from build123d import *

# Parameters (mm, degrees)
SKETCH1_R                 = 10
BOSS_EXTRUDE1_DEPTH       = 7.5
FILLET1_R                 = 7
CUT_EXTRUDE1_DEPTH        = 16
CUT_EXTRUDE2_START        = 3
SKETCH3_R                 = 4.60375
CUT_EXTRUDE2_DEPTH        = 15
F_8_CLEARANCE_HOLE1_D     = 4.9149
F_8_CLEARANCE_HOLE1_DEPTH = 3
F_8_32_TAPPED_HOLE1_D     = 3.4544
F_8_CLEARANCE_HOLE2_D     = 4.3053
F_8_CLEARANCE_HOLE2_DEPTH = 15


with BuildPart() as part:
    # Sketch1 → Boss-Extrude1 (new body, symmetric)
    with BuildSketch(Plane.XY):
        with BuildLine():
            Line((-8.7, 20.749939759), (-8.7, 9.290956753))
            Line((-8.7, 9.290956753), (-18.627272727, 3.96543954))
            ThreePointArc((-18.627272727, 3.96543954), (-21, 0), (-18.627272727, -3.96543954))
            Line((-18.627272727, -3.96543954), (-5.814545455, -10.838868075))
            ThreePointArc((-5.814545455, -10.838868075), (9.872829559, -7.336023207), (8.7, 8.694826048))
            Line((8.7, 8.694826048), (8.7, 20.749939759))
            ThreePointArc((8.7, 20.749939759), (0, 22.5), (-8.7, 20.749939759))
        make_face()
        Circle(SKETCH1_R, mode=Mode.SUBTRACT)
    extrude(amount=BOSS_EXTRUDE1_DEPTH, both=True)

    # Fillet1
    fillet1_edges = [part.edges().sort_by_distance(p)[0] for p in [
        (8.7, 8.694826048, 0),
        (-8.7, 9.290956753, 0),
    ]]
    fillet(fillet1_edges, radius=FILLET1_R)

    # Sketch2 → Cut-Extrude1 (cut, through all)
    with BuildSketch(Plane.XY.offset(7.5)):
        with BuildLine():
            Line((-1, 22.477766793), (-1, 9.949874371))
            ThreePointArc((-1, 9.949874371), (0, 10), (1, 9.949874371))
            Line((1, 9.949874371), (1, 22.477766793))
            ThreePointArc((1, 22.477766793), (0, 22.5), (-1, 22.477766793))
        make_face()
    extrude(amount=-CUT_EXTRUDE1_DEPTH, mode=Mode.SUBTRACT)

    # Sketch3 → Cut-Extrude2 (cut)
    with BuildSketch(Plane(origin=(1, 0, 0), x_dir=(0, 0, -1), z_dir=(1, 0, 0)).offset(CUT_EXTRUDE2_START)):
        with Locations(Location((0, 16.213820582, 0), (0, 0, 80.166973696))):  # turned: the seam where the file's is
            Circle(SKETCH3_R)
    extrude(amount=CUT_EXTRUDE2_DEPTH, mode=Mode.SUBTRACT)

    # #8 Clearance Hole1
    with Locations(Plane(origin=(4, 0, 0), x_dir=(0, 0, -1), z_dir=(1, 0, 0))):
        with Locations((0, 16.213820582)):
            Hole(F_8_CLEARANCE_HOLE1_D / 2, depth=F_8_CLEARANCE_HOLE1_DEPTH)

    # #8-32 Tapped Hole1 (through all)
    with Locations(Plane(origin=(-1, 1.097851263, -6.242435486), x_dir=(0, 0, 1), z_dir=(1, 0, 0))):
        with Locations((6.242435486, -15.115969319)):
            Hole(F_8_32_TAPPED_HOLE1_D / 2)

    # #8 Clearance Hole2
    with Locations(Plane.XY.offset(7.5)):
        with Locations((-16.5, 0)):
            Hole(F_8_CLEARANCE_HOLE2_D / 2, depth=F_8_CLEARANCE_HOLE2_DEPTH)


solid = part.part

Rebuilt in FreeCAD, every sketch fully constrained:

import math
import FreeCAD as App
import Part
import Sketcher
from FreeCAD import Vector
Q = App.Units.Quantity


def edges_at(feature, points):
    """Names of the edges that pass closest to the given points."""
    edges = feature.Shape.Edges
    near = lambda p: min(range(len(edges)), key=lambda i: edges[i].distToShape(Part.Vertex(*p))[0])
    return sorted({f"Edge{near(p) + 1}" for p in points})

doc = App.newDocument("Part")
params = doc.addObject("Spreadsheet::Sheet", "Params")
for row, (alias, value) in enumerate([
    ("sketch1_diameter", "20 mm"),
    ("sketch1_radius", "4.5 mm"),
    ("sketch1_radius2", "12.3 mm"),
    ("sketch1_radius3", "22.5 mm"),
    ("pad1_length", "15 mm"),
    ("fillet_radius", "7 mm"),
    ("sketch2_radius", "10 mm"),
    ("sketch2_radius2", "22.5 mm"),
    ("pocket2_length", "15 mm"),
    ("hole_diameter", "4.9149 mm"),
    ("hole_depth", "3 mm"),
    ("hole2_diameter", "3.4544 mm"),
    ("hole3_diameter", "4.3053 mm"),
    ("hole3_depth", "15 mm"),
], start=1):
    params.set(f"A{row}", alias)
    params.set(f"B{row}", "=" + value)
    params.setAlias(f"B{row}", alias)

body = doc.addObject("PartDesign::Body", "Body")

# Sketch on XY plane
sketch1 = body.newObject("Sketcher::SketchObject", "Sketch")
sketch1.AttachmentSupport = (doc.getObject("XY_Plane"), [""])
sketch1.MapMode = "FlatFace"
sketch1.addGeometry([
    Part.LineSegment(Vector(-8.7, 20.7, 0), Vector(-8.7, 9.3, 0)),  # 0
    Part.LineSegment(Vector(-8.7, 9.3, 0), Vector(-18.6, 4, 0)),  # 1
    Part.ArcOfCircle(Part.Circle(Vector(-16.5, 0, 0), Vector(0, 0, 1), 4.5), math.radians(118), math.radians(242)),  # 2
    Part.LineSegment(Vector(-18.6, -4, 0), Vector(-5.8, -10.8, 0)),  # 3
    Part.ArcOfCircle(Part.Circle(Vector(0, 0, 0), Vector(0, 0, 1), 12.3), math.radians(-118), math.radians(45)),  # 4
    Part.LineSegment(Vector(8.7, 8.7, 0), Vector(8.7, 20.7, 0)),  # 5
    Part.ArcOfCircle(Part.Circle(Vector(0, 0, 0), Vector(0, 0, 1), 22.5), math.radians(67), math.radians(113)),  # 6
    Part.Circle(Vector(0, 0, 0), Vector(0, 0, 1), 10),  # 7
], False)
sketch1.addConstraint([
    Sketcher.Constraint("Coincident", 0, 2, 1, 1),
    Sketcher.Constraint("Tangent", 1, 2, 2, 1),
    Sketcher.Constraint("Tangent", 2, 2, 3, 1),
    Sketcher.Constraint("Tangent", 3, 2, 4, 1),
    Sketcher.Constraint("Coincident", 4, 2, 5, 1),
    Sketcher.Constraint("Coincident", 5, 2, 6, 1),
    Sketcher.Constraint("Coincident", 6, 2, 0, 1),
    Sketcher.Constraint("Vertical", 0),
    Sketcher.Constraint("Vertical", 5),
    Sketcher.Constraint("Coincident", 4, 3, -1, 1),
    Sketcher.Constraint("Coincident", 6, 3, -1, 1),
    Sketcher.Constraint("Coincident", 7, 3, -1, 1),
    Sketcher.Constraint("Symmetric", 1, 2, 2, 2, -1),
    Sketcher.Constraint("Horizontal", 5, 2, 6, 2),
    Sketcher.Constraint("Diameter", 7, Q("20 mm")),
    Sketcher.Constraint("Radius", 2, Q("4.5 mm")),
    Sketcher.Constraint("Radius", 4, Q("12.3 mm")),
    Sketcher.Constraint("Radius", 6, Q("22.5 mm")),
    Sketcher.Constraint("DistanceX", 2, 3, -1, 1, Q("16.5 mm")),
    Sketcher.Constraint("DistanceX", 0, 2, -1, 1, Q("8.7 mm")),
])
sketch1.setExpression("Constraints[14]", "Params.sketch1_diameter")
sketch1.setExpression("Constraints[15]", "Params.sketch1_radius")
sketch1.setExpression("Constraints[16]", "Params.sketch1_radius2")
sketch1.setExpression("Constraints[17]", "Params.sketch1_radius3")
pad1 = body.newObject("PartDesign::Pad", "Pad")
pad1.Profile = sketch1
pad1.setExpression("Length", "Params.pad1_length")
pad1.Midplane = True
doc.recompute()

fillet = body.newObject("PartDesign::Fillet", "Fillet")
fillet.Base = (pad1, edges_at(pad1, [(8.7, 8.695, 0), (-8.7, 9.291, 0)]))
fillet.setExpression("Radius", "Params.fillet_radius")

# Sketch on XY plane
sketch2 = body.newObject("Sketcher::SketchObject", "Sketch001")
sketch2.AttachmentSupport = (doc.getObject("XY_Plane"), [""])
sketch2.MapMode = "FlatFace"
sketch2.AttachmentOffset = App.Placement(Vector(0, 0, 7.5), App.Rotation())
sketch2.addGeometry([
    Part.LineSegment(Vector(-1, 22.5, 0), Vector(-1, 9.9, 0)),
    Part.ArcOfCircle(Part.Circle(Vector(0, 0, 0), Vector(0, 0, 1), 10), math.radians(84.26), math.radians(95.74)),
    Part.LineSegment(Vector(1, 9.9, 0), Vector(1, 22.5, 0)),
    Part.ArcOfCircle(Part.Circle(Vector(0, 0, 0), Vector(0, 0, 1), 22.5), math.radians(87.45), math.radians(92.55)),
], False)
sketch2.addConstraint([
    Sketcher.Constraint("Coincident", 0, 2, 1, 2),
    Sketcher.Constraint("Coincident", 1, 1, 2, 1),
    Sketcher.Constraint("Coincident", 2, 2, 3, 1),
    Sketcher.Constraint("Coincident", 3, 2, 0, 1),
    Sketcher.Constraint("Vertical", 0),
    Sketcher.Constraint("Vertical", 2),
    Sketcher.Constraint("Coincident", 1, 3, -1, 1),
    Sketcher.Constraint("Coincident", 3, 3, -1, 1),
    Sketcher.Constraint("Horizontal", 0, 2, 1, 1),
    Sketcher.Constraint("Radius", 1, Q("10 mm")),
    Sketcher.Constraint("Radius", 3, Q("22.5 mm")),
    Sketcher.Constraint("DistanceX", 0, 2, -1, 1, Q("1 mm")),
])
sketch2.setExpression("Constraints[9]", "Params.sketch2_radius")
sketch2.setExpression("Constraints[10]", "Params.sketch2_radius2")
pocket1 = body.newObject("PartDesign::Pocket", "Pocket")
pocket1.Profile = sketch2
pocket1.Type = "ThroughAll"

# Sketch on YZ plane
sketch3 = body.newObject("Sketcher::SketchObject", "Sketch002")
sketch3.AttachmentSupport = (doc.getObject("YZ_Plane"), [""])
sketch3.MapMode = "FlatFace"
sketch3.AttachmentOffset = App.Placement(Vector(0, 0, 4), App.Rotation())
sketch3.addGeometry(Part.Circle(Vector(16.2, 0, 0), Vector(0, 0, 1), 4.6), False)
sketch3.addConstraint([
    Sketcher.Constraint("PointOnObject", 0, 3, -1),
    Sketcher.Constraint("Diameter", 0, Q("9.2075 mm")),
    Sketcher.Constraint("DistanceX", -1, 1, 0, 3, Q("16.213821 mm")),
])
pocket2 = body.newObject("PartDesign::Pocket", "Pocket001")
pocket2.Profile = sketch3
pocket2.setExpression("Length", "Params.pocket2_length")
pocket2.Reversed = True

# Sketch on YZ plane
sketch4 = body.newObject("Sketcher::SketchObject", "Sketch003")
sketch4.AttachmentSupport = (doc.getObject("YZ_Plane"), [""])
sketch4.MapMode = "FlatFace"
sketch4.AttachmentOffset = App.Placement(Vector(0, 0, 4), App.Rotation())
sketch4.addGeometry(Part.Circle(Vector(16.2, 0, 0), Vector(0, 0, 1), 2.5), False)
sketch4.addConstraint([
    Sketcher.Constraint("PointOnObject", 0, 3, -1),
    Sketcher.Constraint("Diameter", 0, Q("4.9149 mm")),
    Sketcher.Constraint("DistanceX", -1, 1, 0, 3, Q("16.213821 mm")),
])
doc.recompute()
hole = body.newObject("PartDesign::Hole", "Hole")
hole.Profile = sketch4
hole.ThreadType = "None"
hole.setExpression("Diameter", "Params.hole_diameter")
hole.DepthType = "Dimension"
hole.setExpression("Depth", "Params.hole_depth")
hole.DrillPoint = "Flat"

# Sketch on YZ plane
sketch5 = body.newObject("Sketcher::SketchObject", "Sketch004")
sketch5.AttachmentSupport = (doc.getObject("YZ_Plane"), [""])
sketch5.MapMode = "FlatFace"
sketch5.AttachmentOffset = App.Placement(Vector(0, 0, -1), App.Rotation())
sketch5.addGeometry(Part.Circle(Vector(16.2, 0, 0), Vector(0, 0, 1), 1.7), False)
sketch5.addConstraint([
    Sketcher.Constraint("PointOnObject", 0, 3, -1),
    Sketcher.Constraint("Diameter", 0, Q("3.4544 mm")),
    Sketcher.Constraint("DistanceX", -1, 1, 0, 3, Q("16.213821 mm")),
])
doc.recompute()
hole2 = body.newObject("PartDesign::Hole", "Hole001")
hole2.Profile = sketch5
hole2.ThreadType = "None"
hole2.setExpression("Diameter", "Params.hole2_diameter")
hole2.DepthType = "ThroughAll"

# Sketch on XY plane
sketch6 = body.newObject("Sketcher::SketchObject", "Sketch005")
sketch6.AttachmentSupport = (doc.getObject("XY_Plane"), [""])
sketch6.MapMode = "FlatFace"
sketch6.AttachmentOffset = App.Placement(Vector(0, 0, 7.5), App.Rotation())
sketch6.addGeometry(Part.Circle(Vector(-16.5, 0, 0), Vector(0, 0, 1), 2.2), False)
sketch6.addConstraint([
    Sketcher.Constraint("PointOnObject", 0, 3, -1),
    Sketcher.Constraint("Diameter", 0, Q("4.3053 mm")),
    Sketcher.Constraint("DistanceX", 0, 3, -1, 1, Q("16.5 mm")),
])
doc.recompute()
hole3 = body.newObject("PartDesign::Hole", "Hole002")
hole3.Profile = sketch6
hole3.ThreadType = "None"
hole3.setExpression("Diameter", "Params.hole3_diameter")
hole3.DepthType = "Dimension"
hole3.setExpression("Depth", "Params.hole3_depth")
hole3.DrillPoint = "Flat"

doc.recompute()
